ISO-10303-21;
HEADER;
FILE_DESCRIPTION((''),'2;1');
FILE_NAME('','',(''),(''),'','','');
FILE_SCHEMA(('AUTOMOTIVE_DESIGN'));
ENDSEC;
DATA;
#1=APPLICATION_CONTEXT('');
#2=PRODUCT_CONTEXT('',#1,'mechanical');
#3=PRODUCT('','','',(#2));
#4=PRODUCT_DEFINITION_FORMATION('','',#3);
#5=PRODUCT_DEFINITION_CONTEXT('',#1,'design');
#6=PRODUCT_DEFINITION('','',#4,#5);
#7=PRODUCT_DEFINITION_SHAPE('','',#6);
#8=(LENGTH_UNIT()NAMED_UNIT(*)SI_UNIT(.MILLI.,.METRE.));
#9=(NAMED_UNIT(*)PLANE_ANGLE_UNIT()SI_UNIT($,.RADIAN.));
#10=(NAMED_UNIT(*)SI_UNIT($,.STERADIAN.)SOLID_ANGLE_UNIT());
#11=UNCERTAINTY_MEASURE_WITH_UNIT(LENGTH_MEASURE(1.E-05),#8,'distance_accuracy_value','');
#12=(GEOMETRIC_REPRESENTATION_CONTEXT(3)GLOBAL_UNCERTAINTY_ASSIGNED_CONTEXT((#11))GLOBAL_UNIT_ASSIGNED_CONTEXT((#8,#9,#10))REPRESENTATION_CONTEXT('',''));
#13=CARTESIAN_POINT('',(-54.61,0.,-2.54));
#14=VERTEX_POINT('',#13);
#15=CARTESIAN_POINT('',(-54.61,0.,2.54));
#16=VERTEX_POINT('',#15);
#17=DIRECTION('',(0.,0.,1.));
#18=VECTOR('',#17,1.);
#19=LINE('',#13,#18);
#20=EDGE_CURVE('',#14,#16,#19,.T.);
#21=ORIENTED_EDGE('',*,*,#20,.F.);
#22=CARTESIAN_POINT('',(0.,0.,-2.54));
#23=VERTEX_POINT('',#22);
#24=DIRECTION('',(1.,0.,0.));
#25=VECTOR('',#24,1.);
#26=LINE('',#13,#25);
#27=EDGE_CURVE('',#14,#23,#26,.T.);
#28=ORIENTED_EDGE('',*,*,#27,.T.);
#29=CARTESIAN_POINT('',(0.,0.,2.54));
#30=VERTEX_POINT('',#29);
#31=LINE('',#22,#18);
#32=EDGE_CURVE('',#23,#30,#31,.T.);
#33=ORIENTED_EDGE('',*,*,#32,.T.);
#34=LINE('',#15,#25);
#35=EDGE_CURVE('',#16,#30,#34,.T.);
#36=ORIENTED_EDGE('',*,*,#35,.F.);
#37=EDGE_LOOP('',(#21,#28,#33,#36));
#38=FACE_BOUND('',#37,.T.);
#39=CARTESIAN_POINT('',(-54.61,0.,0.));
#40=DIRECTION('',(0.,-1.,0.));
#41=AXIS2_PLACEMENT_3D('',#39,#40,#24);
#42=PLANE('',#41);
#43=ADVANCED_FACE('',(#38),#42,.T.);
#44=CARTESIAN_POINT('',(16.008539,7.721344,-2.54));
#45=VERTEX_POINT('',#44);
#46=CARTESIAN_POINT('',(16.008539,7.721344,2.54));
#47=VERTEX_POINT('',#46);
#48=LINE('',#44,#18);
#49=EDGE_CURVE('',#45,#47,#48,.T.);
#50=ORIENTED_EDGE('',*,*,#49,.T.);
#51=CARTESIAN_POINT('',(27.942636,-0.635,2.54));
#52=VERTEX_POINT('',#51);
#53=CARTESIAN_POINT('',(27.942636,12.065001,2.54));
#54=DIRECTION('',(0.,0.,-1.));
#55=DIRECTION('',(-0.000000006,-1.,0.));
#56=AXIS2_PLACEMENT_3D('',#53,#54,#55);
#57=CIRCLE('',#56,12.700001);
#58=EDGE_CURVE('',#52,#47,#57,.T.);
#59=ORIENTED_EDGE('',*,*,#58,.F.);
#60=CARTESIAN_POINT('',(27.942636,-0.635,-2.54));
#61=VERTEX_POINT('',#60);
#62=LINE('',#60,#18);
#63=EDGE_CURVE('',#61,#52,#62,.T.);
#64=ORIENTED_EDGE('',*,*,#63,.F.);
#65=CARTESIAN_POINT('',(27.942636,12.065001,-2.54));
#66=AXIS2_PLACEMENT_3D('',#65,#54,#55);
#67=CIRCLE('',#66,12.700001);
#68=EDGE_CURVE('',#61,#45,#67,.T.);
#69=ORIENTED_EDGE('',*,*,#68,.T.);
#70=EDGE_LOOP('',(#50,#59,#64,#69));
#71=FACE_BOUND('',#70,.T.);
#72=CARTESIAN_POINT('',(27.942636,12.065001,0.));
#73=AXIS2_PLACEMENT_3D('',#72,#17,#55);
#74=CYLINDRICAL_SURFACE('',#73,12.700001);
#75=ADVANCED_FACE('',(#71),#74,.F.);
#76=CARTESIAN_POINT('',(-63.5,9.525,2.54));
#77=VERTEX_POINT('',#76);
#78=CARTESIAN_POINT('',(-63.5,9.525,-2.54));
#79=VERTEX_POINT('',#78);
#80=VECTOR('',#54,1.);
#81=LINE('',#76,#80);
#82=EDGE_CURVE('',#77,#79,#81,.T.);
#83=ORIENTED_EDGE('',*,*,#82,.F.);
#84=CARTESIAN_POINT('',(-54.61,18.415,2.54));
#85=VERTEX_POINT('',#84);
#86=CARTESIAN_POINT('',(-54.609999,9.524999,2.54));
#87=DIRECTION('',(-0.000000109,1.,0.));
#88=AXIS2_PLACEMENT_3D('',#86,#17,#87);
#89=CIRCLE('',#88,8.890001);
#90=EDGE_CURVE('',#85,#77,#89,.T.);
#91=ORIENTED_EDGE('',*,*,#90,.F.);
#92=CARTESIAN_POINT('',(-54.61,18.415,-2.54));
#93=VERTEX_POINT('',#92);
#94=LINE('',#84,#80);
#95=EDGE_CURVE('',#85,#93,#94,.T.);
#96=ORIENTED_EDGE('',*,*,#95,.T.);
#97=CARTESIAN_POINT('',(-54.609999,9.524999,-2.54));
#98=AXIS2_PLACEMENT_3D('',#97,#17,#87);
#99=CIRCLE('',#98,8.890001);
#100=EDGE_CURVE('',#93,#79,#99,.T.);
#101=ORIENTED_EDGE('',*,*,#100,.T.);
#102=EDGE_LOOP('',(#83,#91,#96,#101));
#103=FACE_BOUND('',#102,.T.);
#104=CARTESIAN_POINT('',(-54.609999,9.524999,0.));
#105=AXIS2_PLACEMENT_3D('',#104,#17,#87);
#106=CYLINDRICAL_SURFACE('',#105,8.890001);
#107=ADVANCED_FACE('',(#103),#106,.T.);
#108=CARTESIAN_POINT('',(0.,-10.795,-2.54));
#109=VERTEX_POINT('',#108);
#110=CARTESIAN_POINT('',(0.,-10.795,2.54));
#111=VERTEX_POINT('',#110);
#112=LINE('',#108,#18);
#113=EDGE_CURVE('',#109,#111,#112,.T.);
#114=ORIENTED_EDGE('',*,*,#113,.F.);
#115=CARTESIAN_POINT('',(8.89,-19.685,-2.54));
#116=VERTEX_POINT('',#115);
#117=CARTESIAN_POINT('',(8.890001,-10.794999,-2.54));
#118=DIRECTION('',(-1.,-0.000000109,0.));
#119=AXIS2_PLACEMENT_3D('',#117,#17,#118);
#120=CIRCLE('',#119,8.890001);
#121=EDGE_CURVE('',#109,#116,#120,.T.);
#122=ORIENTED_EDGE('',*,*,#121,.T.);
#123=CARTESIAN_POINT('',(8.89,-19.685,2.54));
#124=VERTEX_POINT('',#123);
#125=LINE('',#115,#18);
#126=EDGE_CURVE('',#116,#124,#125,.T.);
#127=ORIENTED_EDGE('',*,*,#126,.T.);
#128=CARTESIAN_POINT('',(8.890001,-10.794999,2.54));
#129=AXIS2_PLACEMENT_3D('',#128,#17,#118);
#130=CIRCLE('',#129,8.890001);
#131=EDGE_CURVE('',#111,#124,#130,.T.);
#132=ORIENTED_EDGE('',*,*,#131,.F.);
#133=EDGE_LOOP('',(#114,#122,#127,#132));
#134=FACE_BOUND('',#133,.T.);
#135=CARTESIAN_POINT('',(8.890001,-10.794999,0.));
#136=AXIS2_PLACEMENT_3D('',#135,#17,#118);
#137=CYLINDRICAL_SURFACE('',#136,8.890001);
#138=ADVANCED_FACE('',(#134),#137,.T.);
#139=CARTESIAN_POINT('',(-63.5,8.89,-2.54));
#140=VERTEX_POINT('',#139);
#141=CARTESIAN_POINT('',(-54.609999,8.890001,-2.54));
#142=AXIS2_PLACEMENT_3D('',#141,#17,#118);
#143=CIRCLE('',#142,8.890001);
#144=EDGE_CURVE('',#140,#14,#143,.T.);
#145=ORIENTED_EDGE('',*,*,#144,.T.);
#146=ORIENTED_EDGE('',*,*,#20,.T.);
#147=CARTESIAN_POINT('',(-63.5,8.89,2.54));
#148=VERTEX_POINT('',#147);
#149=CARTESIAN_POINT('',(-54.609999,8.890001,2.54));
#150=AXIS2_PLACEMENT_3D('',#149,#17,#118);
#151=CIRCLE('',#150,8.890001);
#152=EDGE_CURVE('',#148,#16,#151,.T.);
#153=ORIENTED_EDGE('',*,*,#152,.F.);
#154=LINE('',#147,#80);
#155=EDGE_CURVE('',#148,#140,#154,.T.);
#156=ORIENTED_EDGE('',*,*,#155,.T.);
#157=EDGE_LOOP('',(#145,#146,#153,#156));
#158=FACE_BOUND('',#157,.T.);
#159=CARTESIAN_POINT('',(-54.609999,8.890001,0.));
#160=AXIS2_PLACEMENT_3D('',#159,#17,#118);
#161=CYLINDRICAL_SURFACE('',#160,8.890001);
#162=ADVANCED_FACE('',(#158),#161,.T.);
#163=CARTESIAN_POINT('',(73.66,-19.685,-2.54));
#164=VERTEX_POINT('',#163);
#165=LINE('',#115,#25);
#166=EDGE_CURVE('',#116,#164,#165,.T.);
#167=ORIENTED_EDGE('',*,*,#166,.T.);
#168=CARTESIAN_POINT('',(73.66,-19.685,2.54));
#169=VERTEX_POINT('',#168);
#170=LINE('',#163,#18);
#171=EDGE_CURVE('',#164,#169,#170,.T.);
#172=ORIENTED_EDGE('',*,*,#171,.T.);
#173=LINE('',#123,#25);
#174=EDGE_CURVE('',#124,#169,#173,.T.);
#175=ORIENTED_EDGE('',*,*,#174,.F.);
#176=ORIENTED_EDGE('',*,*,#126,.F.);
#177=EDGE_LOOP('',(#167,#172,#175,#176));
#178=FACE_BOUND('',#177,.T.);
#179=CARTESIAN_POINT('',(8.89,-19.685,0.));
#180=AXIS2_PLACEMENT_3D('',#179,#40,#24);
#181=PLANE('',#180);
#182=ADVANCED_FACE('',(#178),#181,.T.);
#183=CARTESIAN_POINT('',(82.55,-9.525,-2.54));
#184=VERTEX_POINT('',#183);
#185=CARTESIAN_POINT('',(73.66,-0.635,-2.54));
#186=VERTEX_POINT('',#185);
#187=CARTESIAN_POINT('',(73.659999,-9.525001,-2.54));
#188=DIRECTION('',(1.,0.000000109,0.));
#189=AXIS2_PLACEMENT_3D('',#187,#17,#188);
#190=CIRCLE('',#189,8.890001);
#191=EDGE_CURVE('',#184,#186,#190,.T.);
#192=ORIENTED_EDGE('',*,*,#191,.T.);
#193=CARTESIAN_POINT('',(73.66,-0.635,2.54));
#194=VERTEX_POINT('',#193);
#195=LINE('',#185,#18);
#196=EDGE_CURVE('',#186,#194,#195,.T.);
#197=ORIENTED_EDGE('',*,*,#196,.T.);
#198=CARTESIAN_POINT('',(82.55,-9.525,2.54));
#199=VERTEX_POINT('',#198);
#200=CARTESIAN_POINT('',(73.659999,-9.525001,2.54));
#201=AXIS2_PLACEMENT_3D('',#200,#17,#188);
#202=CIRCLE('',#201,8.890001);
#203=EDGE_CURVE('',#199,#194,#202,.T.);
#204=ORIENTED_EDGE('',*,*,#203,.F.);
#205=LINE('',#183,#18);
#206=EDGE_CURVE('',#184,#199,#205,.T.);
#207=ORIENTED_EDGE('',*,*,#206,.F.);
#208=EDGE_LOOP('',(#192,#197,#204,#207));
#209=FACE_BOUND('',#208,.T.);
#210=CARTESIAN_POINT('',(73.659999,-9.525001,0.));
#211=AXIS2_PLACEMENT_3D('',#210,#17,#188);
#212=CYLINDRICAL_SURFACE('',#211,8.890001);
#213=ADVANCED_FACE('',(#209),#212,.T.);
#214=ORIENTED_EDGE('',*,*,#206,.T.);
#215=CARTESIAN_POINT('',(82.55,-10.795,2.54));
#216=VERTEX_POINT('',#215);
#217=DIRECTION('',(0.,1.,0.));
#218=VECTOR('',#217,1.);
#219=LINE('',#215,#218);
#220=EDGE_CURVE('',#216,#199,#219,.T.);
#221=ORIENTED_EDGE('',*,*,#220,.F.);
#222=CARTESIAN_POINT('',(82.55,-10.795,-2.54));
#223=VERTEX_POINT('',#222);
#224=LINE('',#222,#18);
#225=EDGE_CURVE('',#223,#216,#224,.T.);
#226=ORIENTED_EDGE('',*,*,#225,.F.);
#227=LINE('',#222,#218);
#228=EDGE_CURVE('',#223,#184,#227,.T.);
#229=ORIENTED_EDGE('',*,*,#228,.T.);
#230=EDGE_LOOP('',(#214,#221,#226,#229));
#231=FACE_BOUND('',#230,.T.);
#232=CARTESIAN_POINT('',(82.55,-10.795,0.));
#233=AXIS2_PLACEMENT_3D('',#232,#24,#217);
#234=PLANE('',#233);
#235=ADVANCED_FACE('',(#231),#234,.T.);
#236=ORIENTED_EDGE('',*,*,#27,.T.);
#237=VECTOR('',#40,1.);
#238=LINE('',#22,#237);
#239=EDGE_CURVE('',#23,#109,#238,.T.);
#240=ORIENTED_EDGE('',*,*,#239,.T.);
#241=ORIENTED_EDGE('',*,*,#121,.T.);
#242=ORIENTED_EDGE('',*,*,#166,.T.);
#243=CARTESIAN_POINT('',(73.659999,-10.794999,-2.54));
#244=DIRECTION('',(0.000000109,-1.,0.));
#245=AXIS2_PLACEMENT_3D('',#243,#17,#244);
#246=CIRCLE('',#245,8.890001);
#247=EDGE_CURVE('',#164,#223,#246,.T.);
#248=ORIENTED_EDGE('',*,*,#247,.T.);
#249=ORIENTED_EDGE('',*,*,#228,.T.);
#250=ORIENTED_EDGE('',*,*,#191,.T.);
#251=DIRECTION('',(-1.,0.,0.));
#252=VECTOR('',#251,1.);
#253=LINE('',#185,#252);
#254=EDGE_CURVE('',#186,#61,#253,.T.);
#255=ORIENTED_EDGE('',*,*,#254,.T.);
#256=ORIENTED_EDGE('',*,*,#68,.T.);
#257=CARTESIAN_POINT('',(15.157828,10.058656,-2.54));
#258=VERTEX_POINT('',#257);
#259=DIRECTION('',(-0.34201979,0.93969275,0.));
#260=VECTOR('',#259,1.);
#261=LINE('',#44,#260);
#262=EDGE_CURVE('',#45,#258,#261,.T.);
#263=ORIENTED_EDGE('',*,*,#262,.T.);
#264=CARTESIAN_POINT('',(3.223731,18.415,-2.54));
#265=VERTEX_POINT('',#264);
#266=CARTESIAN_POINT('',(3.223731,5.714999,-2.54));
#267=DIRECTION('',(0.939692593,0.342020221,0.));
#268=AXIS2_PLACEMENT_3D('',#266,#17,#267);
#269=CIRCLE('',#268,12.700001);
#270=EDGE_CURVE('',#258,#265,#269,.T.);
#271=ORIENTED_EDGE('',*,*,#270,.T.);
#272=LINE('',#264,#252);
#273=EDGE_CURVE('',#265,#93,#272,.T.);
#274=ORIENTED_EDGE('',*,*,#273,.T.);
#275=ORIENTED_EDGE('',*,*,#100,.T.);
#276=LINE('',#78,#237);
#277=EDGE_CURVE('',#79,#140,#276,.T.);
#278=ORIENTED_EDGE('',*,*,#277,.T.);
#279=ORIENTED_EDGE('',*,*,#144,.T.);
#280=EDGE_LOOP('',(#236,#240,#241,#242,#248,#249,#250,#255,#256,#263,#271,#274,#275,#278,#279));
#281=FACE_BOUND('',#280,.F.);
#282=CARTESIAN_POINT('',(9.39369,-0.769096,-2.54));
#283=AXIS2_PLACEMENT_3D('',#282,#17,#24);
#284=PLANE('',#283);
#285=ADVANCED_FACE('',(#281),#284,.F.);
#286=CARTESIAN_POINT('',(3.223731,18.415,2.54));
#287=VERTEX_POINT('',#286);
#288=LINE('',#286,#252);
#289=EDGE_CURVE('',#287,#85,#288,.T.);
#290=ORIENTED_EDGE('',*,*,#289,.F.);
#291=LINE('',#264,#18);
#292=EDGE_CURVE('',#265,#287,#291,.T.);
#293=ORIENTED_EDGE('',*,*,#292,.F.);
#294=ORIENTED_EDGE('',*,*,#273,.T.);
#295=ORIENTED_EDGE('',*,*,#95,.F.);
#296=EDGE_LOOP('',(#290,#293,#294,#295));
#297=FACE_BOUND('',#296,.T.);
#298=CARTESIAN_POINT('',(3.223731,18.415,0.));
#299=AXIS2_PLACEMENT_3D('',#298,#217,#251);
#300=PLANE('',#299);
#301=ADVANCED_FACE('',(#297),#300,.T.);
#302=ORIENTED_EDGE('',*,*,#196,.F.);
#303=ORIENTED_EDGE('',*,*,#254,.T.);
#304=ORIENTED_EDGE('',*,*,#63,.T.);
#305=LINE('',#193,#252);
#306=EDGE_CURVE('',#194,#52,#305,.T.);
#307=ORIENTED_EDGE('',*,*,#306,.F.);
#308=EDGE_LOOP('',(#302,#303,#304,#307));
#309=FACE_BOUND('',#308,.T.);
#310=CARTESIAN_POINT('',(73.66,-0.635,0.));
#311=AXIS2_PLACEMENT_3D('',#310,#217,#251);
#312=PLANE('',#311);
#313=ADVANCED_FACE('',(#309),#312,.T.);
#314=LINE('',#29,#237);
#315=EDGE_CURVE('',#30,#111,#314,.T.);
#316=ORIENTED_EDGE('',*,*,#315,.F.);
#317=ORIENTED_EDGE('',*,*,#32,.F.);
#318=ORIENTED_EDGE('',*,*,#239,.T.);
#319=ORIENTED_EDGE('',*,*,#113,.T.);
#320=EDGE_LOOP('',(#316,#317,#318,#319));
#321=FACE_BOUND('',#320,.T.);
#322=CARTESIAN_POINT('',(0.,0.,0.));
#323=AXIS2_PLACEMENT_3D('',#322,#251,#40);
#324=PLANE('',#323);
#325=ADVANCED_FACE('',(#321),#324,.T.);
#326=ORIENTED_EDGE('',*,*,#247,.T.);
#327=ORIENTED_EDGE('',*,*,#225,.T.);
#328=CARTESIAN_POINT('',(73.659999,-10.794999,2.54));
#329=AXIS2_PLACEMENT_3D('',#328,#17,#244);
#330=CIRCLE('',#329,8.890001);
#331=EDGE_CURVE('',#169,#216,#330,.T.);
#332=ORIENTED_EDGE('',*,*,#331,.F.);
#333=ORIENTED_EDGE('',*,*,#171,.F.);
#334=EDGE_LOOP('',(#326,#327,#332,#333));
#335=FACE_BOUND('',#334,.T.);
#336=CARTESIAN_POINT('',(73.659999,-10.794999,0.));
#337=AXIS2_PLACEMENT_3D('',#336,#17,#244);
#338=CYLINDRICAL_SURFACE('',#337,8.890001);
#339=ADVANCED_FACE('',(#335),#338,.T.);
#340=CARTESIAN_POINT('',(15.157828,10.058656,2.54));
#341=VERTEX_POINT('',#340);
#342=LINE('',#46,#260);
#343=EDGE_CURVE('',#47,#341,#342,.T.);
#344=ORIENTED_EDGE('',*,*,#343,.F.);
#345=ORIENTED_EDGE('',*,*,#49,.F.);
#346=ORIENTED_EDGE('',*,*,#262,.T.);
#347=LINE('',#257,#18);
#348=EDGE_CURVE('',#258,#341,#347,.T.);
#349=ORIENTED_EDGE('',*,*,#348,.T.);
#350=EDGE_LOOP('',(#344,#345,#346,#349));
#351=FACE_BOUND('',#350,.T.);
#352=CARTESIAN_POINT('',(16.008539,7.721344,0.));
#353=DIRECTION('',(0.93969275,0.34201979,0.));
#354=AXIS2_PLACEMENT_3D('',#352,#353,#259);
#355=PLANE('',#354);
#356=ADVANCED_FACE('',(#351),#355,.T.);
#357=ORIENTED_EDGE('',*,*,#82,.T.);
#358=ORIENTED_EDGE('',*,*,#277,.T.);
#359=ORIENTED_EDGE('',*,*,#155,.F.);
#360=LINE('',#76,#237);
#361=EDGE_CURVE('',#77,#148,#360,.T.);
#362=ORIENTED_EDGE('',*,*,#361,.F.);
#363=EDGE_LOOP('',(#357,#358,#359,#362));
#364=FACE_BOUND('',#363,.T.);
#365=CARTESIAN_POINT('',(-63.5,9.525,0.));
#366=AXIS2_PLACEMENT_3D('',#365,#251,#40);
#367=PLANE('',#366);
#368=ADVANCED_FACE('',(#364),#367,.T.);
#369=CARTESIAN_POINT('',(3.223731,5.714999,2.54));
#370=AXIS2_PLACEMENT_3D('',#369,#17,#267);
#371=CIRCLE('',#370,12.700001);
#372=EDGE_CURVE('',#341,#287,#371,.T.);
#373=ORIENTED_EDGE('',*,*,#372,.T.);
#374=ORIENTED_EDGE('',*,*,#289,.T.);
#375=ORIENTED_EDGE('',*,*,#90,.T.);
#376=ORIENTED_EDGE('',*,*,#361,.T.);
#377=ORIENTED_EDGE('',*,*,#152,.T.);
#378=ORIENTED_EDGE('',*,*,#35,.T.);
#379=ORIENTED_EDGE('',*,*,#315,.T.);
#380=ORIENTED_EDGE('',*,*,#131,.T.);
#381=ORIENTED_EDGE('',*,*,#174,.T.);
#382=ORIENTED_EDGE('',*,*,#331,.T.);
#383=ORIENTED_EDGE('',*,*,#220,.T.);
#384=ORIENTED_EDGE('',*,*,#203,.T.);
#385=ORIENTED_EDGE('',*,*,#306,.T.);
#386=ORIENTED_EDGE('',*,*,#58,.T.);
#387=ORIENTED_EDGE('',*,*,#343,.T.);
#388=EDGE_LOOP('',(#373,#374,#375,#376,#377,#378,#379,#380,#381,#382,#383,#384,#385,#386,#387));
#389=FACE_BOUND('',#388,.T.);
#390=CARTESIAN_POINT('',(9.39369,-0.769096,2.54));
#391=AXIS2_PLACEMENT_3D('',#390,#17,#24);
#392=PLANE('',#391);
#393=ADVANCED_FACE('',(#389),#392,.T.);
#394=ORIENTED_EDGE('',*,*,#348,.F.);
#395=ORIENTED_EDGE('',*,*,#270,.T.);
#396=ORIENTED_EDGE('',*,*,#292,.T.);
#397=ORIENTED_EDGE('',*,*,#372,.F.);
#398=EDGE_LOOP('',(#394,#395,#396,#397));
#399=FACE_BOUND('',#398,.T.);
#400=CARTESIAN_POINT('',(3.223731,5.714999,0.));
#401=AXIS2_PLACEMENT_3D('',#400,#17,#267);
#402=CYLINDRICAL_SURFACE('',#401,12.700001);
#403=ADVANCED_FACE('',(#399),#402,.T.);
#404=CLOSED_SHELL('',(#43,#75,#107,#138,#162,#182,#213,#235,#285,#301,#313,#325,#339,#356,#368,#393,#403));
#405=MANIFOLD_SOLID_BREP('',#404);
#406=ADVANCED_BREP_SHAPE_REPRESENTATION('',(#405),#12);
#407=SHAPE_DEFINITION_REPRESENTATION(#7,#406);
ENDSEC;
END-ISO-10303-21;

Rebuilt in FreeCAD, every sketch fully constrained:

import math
import FreeCAD as App
import Part
import Sketcher
Q = App.Units.Quantity

doc = App.newDocument("Part")
params = doc.addObject("Spreadsheet::Sheet", "Params")
for row, (alias, value) in enumerate([
    ("sketch1_radius", "0.5 in"),
    ("sketch1_radius2", "0.35 in"),
    ("sketch1_width", "2.15 in"),
    ("sketch1_width2", "2.55 in"),
    ("sketch1_height", "0.05 in"),
    ("pad1_length", "0.2 in"),
], start=1):
    params.set(f"A{row}", alias)
    params.set(f"B{row}", "=" + value)
    params.setAlias(f"B{row}", alias)

body = doc.addObject("PartDesign::Body", "Body")

sketch1 = body.newObject("Sketcher::SketchObject", "Sketch")
sketch1.AttachmentSupport = (doc.getObject("XY_Plane"), [""])
sketch1.MapMode = "FlatFace"
sketch1.addGeometry(Part.ArcOfCircle(Part.Circle(App.Vector(-54.6, 8.9, 0), App.Vector(0, 0, 1), 8.9), math.radians(-180), math.radians(-90)), False)
sketch1.addGeometry(Part.LineSegment(App.Vector(-54.6, 0, 0), App.Vector(0, 0, 0)), False)
sketch1.addGeometry(Part.LineSegment(App.Vector(0, 0, 0), App.Vector(0, -10.8, 0)), False)
sketch1.addGeometry(Part.ArcOfCircle(Part.Circle(App.Vector(8.9, -10.8, 0), App.Vector(0, 0, 1), 8.9), math.radians(-180), math.radians(-90)), False)
sketch1.addGeometry(Part.LineSegment(App.Vector(8.9, -19.7, 0), App.Vector(73.7, -19.7, 0)), False)
sketch1.addGeometry(Part.ArcOfCircle(Part.Circle(App.Vector(73.7, -10.8, 0), App.Vector(0, 0, 1), 8.9), math.radians(-90), math.radians(0)), False)
sketch1.addGeometry(Part.LineSegment(App.Vector(82.5, -10.8, 0), App.Vector(82.5, -9.5, 0)), False)
sketch1.addGeometry(Part.ArcOfCircle(Part.Circle(App.Vector(73.7, -9.5, 0), App.Vector(0, 0, 1), 8.9), math.radians(0), math.radians(90)), False)
sketch1.addGeometry(Part.LineSegment(App.Vector(73.7, -0.6, 0), App.Vector(27.9, -0.6, 0)), False)
sketch1.addGeometry(Part.ArcOfCircle(Part.Circle(App.Vector(27.9, 12.1, 0), App.Vector(0, 0, 1), 12.7), math.radians(-160), math.radians(-90)), False)
sketch1.addGeometry(Part.LineSegment(App.Vector(16, 7.7, 0), App.Vector(15.2, 10.1, 0)), False)
sketch1.addGeometry(Part.ArcOfCircle(Part.Circle(App.Vector(3.2, 5.7, 0), App.Vector(0, 0, 1), 12.7), math.radians(20), math.radians(90)), False)
sketch1.addGeometry(Part.LineSegment(App.Vector(3.2, 18.4, 0), App.Vector(-54.6, 18.4, 0)), False)
sketch1.addGeometry(Part.ArcOfCircle(Part.Circle(App.Vector(-54.6, 9.5, 0), App.Vector(0, 0, 1), 8.9), math.radians(90), math.radians(180)), False)
sketch1.addGeometry(Part.LineSegment(App.Vector(-63.5, 9.5, 0), App.Vector(-63.5, 8.9, 0)), False)
sketch1.addConstraint(Sketcher.Constraint("Tangent", 0, 2, 1, 1))
sketch1.addConstraint(Sketcher.Constraint("Coincident", 1, 2, 2, 1))
sketch1.addConstraint(Sketcher.Constraint("Tangent", 2, 2, 3, 1))
sketch1.addConstraint(Sketcher.Constraint("Tangent", 3, 2, 4, 1))
sketch1.addConstraint(Sketcher.Constraint("Tangent", 4, 2, 5, 1))
sketch1.addConstraint(Sketcher.Constraint("Tangent", 5, 2, 6, 1))
sketch1.addConstraint(Sketcher.Constraint("Tangent", 6, 2, 7, 1))
sketch1.addConstraint(Sketcher.Constraint("Tangent", 7, 2, 8, 1))
sketch1.addConstraint(Sketcher.Constraint("Tangent", 8, 2, 9, 2))
sketch1.addConstraint(Sketcher.Constraint("Tangent", 9, 1, 10, 1))
sketch1.addConstraint(Sketcher.Constraint("Tangent", 10, 2, 11, 1))
sketch1.addConstraint(Sketcher.Constraint("Tangent", 11, 2, 12, 1))
sketch1.addConstraint(Sketcher.Constraint("Tangent", 12, 2, 13, 1))
sketch1.addConstraint(Sketcher.Constraint("Tangent", 13, 2, 14, 1))
sketch1.addConstraint(Sketcher.Constraint("Tangent", 14, 2, 0, 1))
sketch1.addConstraint(Sketcher.Constraint("Horizontal", 1))
sketch1.addConstraint(Sketcher.Constraint("Vertical", 2))
sketch1.addConstraint(Sketcher.Constraint("Horizontal", 4))
sketch1.addConstraint(Sketcher.Constraint("Vertical", 6))
sketch1.addConstraint(Sketcher.Constraint("Horizontal", 8))
sketch1.addConstraint(Sketcher.Constraint("Horizontal", 12))
sketch1.addConstraint(Sketcher.Constraint("Vertical", 14))
sketch1.addConstraint(Sketcher.Constraint("Coincident", 1, 2, -1, 1))
sketch1.addConstraint(Sketcher.Constraint("Equal", 0, 3))
sketch1.addConstraint(Sketcher.Constraint("Equal", 3, 5))
sketch1.addConstraint(Sketcher.Constraint("Equal", 5, 7))
sketch1.addConstraint(Sketcher.Constraint("Equal", 9, 11))
sketch1.addConstraint(Sketcher.Constraint("Equal", 7, 13))
sketch1.addConstraint(Sketcher.Constraint("Radius", 9, Q("0.5 in")))
sketch1.addConstraint(Sketcher.Constraint("Radius", 0, Q("0.35 in")))
sketch1.addConstraint(Sketcher.Constraint("DistanceY", 3, 2, 11, 3, Q("1 in")))
sketch1.addConstraint(Sketcher.Constraint("DistanceX", 1, 1, 1, 2, Q("2.15 in")))
sketch1.addConstraint(Sketcher.Constraint("DistanceX", 4, 1, 4, 2, Q("2.55 in")))
sketch1.addConstraint(Sketcher.Constraint("DistanceY", 6, 1, 6, 2, Q("0.05 in")))
sketch1.addConstraint(Sketcher.Constraint("DistanceY", 2, 2, 2, 1, Q("0.425 in")))
sketch1.addConstraint(Sketcher.Constraint("DistanceX", 12, 2, 12, 1, 57.833731))
sketch1.addConstraint(Sketcher.Constraint("DistanceX", 8, 2, 8, 1, 45.717364))
sketch1.setExpression("Constraints[28]", "Params.sketch1_radius")
sketch1.setExpression("Constraints[29]", "Params.sketch1_radius2")
sketch1.setExpression("Constraints[31]", "Params.sketch1_width")
sketch1.setExpression("Constraints[32]", "Params.sketch1_width2")
sketch1.setExpression("Constraints[33]", "Params.sketch1_height")
pad1 = body.newObject("PartDesign::Pad", "Pad")
pad1.Profile = sketch1
pad1.setExpression("Length", "Params.pad1_length")
pad1.Midplane = True

doc.recompute()
